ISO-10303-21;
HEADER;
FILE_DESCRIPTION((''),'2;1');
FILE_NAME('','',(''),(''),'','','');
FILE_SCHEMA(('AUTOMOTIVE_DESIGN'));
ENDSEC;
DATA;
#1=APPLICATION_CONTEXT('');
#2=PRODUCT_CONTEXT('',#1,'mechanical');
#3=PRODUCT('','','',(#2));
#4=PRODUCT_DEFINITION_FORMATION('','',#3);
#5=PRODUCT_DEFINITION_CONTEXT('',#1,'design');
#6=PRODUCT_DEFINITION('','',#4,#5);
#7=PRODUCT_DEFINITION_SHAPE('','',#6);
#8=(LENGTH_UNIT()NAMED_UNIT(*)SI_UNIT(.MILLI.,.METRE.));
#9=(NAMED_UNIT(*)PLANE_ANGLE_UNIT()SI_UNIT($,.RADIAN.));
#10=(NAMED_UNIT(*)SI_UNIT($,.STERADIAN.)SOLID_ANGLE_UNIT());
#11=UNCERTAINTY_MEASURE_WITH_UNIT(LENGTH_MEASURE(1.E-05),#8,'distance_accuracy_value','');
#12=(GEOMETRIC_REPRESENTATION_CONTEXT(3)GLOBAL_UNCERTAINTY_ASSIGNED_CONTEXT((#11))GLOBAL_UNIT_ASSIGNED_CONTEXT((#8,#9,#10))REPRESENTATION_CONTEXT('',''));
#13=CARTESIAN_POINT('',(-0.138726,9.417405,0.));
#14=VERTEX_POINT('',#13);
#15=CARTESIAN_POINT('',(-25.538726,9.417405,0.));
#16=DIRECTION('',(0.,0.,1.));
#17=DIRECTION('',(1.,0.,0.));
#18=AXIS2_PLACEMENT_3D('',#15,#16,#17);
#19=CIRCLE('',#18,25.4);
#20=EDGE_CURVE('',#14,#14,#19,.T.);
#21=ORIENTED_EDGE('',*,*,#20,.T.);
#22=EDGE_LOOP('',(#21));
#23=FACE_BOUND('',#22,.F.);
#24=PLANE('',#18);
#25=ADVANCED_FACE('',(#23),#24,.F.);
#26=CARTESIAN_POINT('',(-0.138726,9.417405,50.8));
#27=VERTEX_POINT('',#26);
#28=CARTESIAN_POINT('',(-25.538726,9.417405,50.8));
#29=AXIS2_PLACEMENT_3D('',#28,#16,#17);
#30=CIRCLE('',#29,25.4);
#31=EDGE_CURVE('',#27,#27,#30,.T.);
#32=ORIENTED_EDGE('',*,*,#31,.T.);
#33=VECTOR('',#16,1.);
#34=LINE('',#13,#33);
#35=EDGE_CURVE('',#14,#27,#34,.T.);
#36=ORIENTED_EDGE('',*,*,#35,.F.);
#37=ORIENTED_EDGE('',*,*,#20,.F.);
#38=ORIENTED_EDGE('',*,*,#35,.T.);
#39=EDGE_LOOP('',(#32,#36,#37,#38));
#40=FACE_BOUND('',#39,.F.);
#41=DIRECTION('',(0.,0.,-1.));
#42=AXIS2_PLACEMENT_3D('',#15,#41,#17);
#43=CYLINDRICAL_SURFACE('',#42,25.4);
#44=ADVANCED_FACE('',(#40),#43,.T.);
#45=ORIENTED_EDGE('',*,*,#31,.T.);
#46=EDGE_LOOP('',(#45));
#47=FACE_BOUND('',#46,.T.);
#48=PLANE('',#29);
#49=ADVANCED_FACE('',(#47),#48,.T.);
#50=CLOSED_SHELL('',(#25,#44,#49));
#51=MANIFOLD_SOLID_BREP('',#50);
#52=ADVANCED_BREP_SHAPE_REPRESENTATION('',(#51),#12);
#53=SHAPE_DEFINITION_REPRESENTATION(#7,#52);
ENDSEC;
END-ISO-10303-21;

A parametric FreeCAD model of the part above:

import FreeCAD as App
import Part
import Sketcher

V = App.Vector
Q = App.Units.Quantity

doc = App.newDocument("Part")
body = doc.addObject("PartDesign::Body", "Body")

sketch1 = doc.addObject("Sketcher::SketchObject", "Sketch")
body.addObject(sketch1)
sketch1.AttachmentSupport = (doc.XY_Plane, [""])
sketch1.MapMode = "FlatFace"
sketch1.addGeometry(Part.Circle(V(-26, 9, 0), V(0, 0, 1), 25), False)
sketch1.addConstraint(Sketcher.Constraint("Diameter", 0, Q("2 in")))
sketch1.addConstraint(Sketcher.Constraint("DistanceX", 0, 3, -1, 1, Q("25.538726 mm")))
sketch1.addConstraint(Sketcher.Constraint("DistanceY", -1, 1, 0, 3, Q("9.417405 mm")))
pad1 = doc.addObject("PartDesign::Pad", "Pad")
body.addObject(pad1)
pad1.Profile = sketch1
pad1.Length = Q("2 in")

doc.recompute()
